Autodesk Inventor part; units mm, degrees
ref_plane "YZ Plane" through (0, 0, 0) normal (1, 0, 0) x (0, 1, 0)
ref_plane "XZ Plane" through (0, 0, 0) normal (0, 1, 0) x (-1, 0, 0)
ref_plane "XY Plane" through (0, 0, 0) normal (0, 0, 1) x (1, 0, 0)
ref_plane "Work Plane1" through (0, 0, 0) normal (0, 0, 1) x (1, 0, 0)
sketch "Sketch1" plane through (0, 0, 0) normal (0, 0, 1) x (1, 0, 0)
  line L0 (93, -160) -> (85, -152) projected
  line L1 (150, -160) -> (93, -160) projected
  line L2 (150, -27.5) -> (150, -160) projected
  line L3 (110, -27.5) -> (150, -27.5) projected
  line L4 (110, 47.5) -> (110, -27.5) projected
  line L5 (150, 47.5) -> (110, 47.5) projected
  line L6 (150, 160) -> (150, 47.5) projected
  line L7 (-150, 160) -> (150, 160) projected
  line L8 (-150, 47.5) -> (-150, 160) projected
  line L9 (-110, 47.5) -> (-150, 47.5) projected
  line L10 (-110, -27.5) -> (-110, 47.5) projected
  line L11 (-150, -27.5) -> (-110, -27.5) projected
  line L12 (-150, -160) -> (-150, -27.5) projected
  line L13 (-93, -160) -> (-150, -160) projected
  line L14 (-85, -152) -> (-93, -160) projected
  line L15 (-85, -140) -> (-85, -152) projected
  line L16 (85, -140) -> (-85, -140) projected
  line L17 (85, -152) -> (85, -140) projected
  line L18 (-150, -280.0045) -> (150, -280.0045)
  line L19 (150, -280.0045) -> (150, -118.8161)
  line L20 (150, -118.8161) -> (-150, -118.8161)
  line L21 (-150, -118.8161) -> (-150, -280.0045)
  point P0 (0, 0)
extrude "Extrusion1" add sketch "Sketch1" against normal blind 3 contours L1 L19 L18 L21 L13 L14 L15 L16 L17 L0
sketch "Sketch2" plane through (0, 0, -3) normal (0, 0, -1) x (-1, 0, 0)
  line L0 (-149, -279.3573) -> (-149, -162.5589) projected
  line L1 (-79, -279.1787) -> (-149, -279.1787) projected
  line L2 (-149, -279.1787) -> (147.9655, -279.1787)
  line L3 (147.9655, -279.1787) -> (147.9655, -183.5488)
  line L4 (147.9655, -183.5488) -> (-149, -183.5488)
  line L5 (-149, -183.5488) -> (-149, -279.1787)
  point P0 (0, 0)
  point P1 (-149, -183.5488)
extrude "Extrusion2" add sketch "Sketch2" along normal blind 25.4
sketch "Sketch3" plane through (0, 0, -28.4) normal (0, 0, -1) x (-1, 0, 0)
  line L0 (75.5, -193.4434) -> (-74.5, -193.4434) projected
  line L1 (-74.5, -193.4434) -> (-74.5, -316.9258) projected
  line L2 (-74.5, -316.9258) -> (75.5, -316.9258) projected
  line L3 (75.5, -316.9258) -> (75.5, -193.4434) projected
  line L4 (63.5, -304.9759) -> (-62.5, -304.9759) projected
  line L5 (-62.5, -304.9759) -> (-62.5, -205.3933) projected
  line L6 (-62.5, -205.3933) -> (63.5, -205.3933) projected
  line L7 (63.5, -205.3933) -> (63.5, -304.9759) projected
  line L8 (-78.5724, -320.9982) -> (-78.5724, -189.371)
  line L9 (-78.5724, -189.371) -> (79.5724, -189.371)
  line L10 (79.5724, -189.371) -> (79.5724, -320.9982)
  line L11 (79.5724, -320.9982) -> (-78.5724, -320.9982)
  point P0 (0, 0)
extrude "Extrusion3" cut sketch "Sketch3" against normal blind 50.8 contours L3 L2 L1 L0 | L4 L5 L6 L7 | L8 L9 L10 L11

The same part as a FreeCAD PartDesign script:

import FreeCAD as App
import Part
import Sketcher
Q = App.Units.Quantity


def add_polygon(sketch, points):
    """Adds a closed chain of lines whose ends are joined by coincident constraints."""
    first, n = sketch.GeometryCount, len(points)
    for a, b in zip(points, points[1:] + points[:1]):
        sketch.addGeometry(Part.LineSegment(App.Vector(*a, 0), App.Vector(*b, 0)), False)
    for i in range(n):
        sketch.addConstraint(Sketcher.Constraint("Coincident", first + i, 2, first + (i + 1) % n, 1))

doc = App.newDocument("Part")
body = doc.addObject("PartDesign::Body", "Body")

# Sketch on XY plane
sketch1 = doc.addObject("Sketcher::SketchObject", "Sketch")
body.addObject(sketch1)
sketch1.AttachmentSupport = (doc.XY_Plane, [""])
sketch1.MapMode = "FlatFace"
add_polygon(sketch1, [(150, -160), (93, -160), (85, -152), (85, -140), (-85, -140), (-85, -152), (-93, -160), (-150, -160), (-150, -280), (150, -280)])  # lines 0-9
sketch1.addConstraint([
    Sketcher.Constraint("Horizontal", 0),
    Sketcher.Constraint("Vertical", 2),
    Sketcher.Constraint("Horizontal", 3),
    Sketcher.Constraint("Vertical", 4),
    Sketcher.Constraint("Horizontal", 6),
    Sketcher.Constraint("Vertical", 7),
    Sketcher.Constraint("Horizontal", 8),
    Sketcher.Constraint("Vertical", 9),
    Sketcher.Constraint("Symmetric", 1, 2, 4, 2, -2),
    Sketcher.Constraint("Symmetric", 0, 2, 5, 2, -2),
    Sketcher.Constraint("Perpendicular", 1, 5),
    Sketcher.Constraint("Equal", 0, 6),
    Sketcher.Constraint("DistanceX", 0, 2, 0, 1, Q("57 mm")),
    Sketcher.Constraint("DistanceX", 3, 2, 3, 1, Q("170 mm")),
    Sketcher.Constraint("DistanceX", 8, 1, 8, 2, Q("300 mm")),
    Sketcher.Constraint("DistanceY", 2, 1, 2, 2, Q("12 mm")),
    Sketcher.Constraint("DistanceY", 0, 2, -1, 1, Q("160 mm")),
    Sketcher.Constraint("DistanceY", 7, 2, 7, 1, Q("120.0045 mm")),
])
pad1 = doc.addObject("PartDesign::Pad", "Pad")
body.addObject(pad1)
pad1.Profile = sketch1
pad1.Length = 3
pad1.Reversed = True

# Sketch on XY plane
sketch2 = doc.addObject("Sketcher::SketchObject", "Sketch001")
body.addObject(sketch2)
sketch2.AttachmentSupport = (doc.XY_Plane, [""])
sketch2.MapMode = "FlatFace"
sketch2.AttachmentOffset = App.Placement(App.Vector(0, 0, -3), App.Rotation())
add_polygon(sketch2, [(149, -184), (149, -279), (-148, -279), (-148, -184)])  # lines 0-3
sketch2.addConstraint([
    Sketcher.Constraint("Vertical", 0),
    Sketcher.Constraint("Horizontal", 1),
    Sketcher.Constraint("Vertical", 2),
    Sketcher.Constraint("Horizontal", 3),
    Sketcher.Constraint("DistanceX", -1, 1, 0, 2, Q("149 mm")),
    Sketcher.Constraint("DistanceY", 0, 2, 0, 1, Q("95.63 mm")),
    Sketcher.Constraint("DistanceX", 1, 2, 1, 1, Q("296.9655 mm")),
    Sketcher.Constraint("DistanceY", 0, 2, -1, 1, Q("279.1787 mm")),
])
pad2 = doc.addObject("PartDesign::Pad", "Pad001")
body.addObject(pad2)
pad2.Profile = sketch2
pad2.Length = 25.4
pad2.Reversed = True

# Sketch on XY plane
sketch3 = doc.addObject("Sketcher::SketchObject", "Sketch002")
body.addObject(sketch3)
sketch3.AttachmentSupport = (doc.XY_Plane, [""])
sketch3.MapMode = "FlatFace"
sketch3.AttachmentOffset = App.Placement(App.Vector(0, 0, -28.4), App.Rotation())
add_polygon(sketch3, [(79, -189), (79, -321), (-80, -321), (-80, -189)])  # lines 0-3
sketch3.addConstraint([
    Sketcher.Constraint("Vertical", 0),
    Sketcher.Constraint("Horizontal", 1),
    Sketcher.Constraint("Vertical", 2),
    Sketcher.Constraint("Horizontal", 3),
    Sketcher.Constraint("DistanceX", 1, 2, 1, 1, Q("158.1448 mm")),
    Sketcher.Constraint("DistanceY", 0, 2, 0, 1, Q("131.6272 mm")),
    Sketcher.Constraint("DistanceY", 2, 2, -1, 1, Q("189.371 mm")),
    Sketcher.Constraint("DistanceX", -1, 1, 0, 2, Q("78.5724 mm")),
])
pocket1 = doc.addObject("PartDesign::Pocket", "Pocket")
body.addObject(pocket1)
pocket1.Profile = sketch3
pocket1.Length = 50.8
pocket1.Reversed = True

doc.recompute()
